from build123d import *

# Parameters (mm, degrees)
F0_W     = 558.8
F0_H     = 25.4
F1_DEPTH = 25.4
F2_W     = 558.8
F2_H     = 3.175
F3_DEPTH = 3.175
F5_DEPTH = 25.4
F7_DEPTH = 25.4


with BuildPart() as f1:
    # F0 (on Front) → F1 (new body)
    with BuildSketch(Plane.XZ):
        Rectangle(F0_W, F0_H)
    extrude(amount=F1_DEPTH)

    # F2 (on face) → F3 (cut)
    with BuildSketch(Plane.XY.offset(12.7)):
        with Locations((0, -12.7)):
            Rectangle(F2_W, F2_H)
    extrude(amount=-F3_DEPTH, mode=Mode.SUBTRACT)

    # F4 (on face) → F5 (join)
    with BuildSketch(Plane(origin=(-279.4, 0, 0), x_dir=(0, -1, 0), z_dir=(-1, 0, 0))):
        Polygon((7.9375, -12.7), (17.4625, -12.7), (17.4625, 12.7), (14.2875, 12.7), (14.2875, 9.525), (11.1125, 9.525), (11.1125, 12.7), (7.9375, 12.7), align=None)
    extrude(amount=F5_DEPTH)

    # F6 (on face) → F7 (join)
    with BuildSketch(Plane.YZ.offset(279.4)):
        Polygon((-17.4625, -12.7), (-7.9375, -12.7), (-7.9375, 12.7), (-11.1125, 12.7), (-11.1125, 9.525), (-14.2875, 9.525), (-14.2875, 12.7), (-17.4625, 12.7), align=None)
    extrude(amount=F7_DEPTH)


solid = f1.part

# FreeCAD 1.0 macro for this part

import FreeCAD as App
import Part
import Sketcher
Q = App.Units.Quantity

doc = App.newDocument("Part")
body = doc.addObject("PartDesign::Body", "Body")

sketch1 = doc.addObject("Sketcher::SketchObject", "Sketch")
body.addObject(sketch1)
sketch1.AttachmentSupport = (doc.XZ_Plane, [""])
sketch1.MapMode = "FlatFace"
sketch1.addGeometry([
    Part.LineSegment(App.Vector(-279.4, 12.7, 0), App.Vector(-279.4, -12.7, 0)),
    Part.LineSegment(App.Vector(-279.4, -12.7, 0), App.Vector(279.4, -12.7, 0)),
    Part.LineSegment(App.Vector(279.4, -12.7, 0), App.Vector(279.4, 12.7, 0)),
    Part.LineSegment(App.Vector(279.4, 12.7, 0), App.Vector(-279.4, 12.7, 0)),
], False)
sketch1.addConstraint([
    Sketcher.Constraint("Coincident", 0, 2, 1, 1),
    Sketcher.Constraint("Coincident", 1, 2, 2, 1),
    Sketcher.Constraint("Coincident", 2, 2, 3, 1),
    Sketcher.Constraint("Coincident", 3, 2, 0, 1),
    Sketcher.Constraint("Vertical", 0),
    Sketcher.Constraint("Horizontal", 1),
    Sketcher.Constraint("Vertical", 2),
    Sketcher.Constraint("Horizontal", 3),
    Sketcher.Constraint("Symmetric", 0, 2, 2, 2, -1, 1),
    Sketcher.Constraint("DistanceX", 1, 1, 1, 2, Q("22 in")),
    Sketcher.Constraint("DistanceY", 0, 2, 0, 1, Q("1 in")),
])
pad1 = doc.addObject("PartDesign::Pad", "Pad")
body.addObject(pad1)
pad1.Profile = sketch1
pad1.Length = Q("1 in")

sketch2 = doc.addObject("Sketcher::SketchObject", "Sketch001")
body.addObject(sketch2)
sketch2.AttachmentSupport = (doc.XY_Plane, [""])
sketch2.MapMode = "FlatFace"
sketch2.AttachmentOffset = App.Placement(App.Vector(0, 0, 0.5 * 25.4), App.Rotation())
sketch2.addGeometry([
    Part.LineSegment(App.Vector(-279.4, -11.1125, 0), App.Vector(-279.4, -14.2875, 0)),
    Part.LineSegment(App.Vector(-279.4, -14.2875, 0), App.Vector(279.4, -14.2875, 0)),
    Part.LineSegment(App.Vector(279.4, -14.2875, 0), App.Vector(279.4, -11.1125, 0)),
    Part.LineSegment(App.Vector(279.4, -11.1125, 0), App.Vector(-279.4, -11.1125, 0)),
], False)
sketch2.addConstraint([
    Sketcher.Constraint("Coincident", 0, 2, 1, 1),
    Sketcher.Constraint("Coincident", 1, 2, 2, 1),
    Sketcher.Constraint("Coincident", 2, 2, 3, 1),
    Sketcher.Constraint("Coincident", 3, 2, 0, 1),
    Sketcher.Constraint("Vertical", 0),
    Sketcher.Constraint("Horizontal", 1),
    Sketcher.Constraint("Vertical", 2),
    Sketcher.Constraint("Horizontal", 3),
    Sketcher.Constraint("DistanceX", 1, 1, 1, 2, Q("22 in")),
    Sketcher.Constraint("DistanceX", 0, 2, -1, 1, Q("11 in")),
    Sketcher.Constraint("DistanceY", 0, 2, 0, 1, Q("0.125 in")),
    Sketcher.Constraint("DistanceY", 0, 2, -1, 1, Q("0.5625 in")),
])
pocket1 = doc.addObject("PartDesign::Pocket", "Pocket")
body.addObject(pocket1)
pocket1.Profile = sketch2
pocket1.Length = Q("0.125 in")

sketch3 = doc.addObject("Sketcher::SketchObject", "Sketch002")
body.addObject(sketch3)
sketch3.AttachmentSupport = (doc.YZ_Plane, [""])
sketch3.MapMode = "FlatFace"
sketch3.AttachmentOffset = App.Placement(App.Vector(0, 0, -11 * 25.4), App.Rotation())
sketch3.addGeometry([
    Part.LineSegment(App.Vector(-7.9375, -12.7, 0), App.Vector(-17.4625, -12.7, 0)),
    Part.LineSegment(App.Vector(-17.4625, -12.7, 0), App.Vector(-17.4625, 12.7, 0)),
    Part.LineSegment(App.Vector(-17.4625, 12.7, 0), App.Vector(-14.2875, 12.7, 0)),
    Part.LineSegment(App.Vector(-14.2875, 12.7, 0), App.Vector(-14.2875, 9.525, 0)),
    Part.LineSegment(App.Vector(-14.2875, 9.525, 0), App.Vector(-11.1125, 9.525, 0)),
    Part.LineSegment(App.Vector(-11.1125, 9.525, 0), App.Vector(-11.1125, 12.7, 0)),
    Part.LineSegment(App.Vector(-11.1125, 12.7, 0), App.Vector(-7.9375, 12.7, 0)),
    Part.LineSegment(App.Vector(-7.9375, 12.7, 0), App.Vector(-7.9375, -12.7, 0)),
], False)
sketch3.addConstraint([
    Sketcher.Constraint("Coincident", 0, 2, 1, 1),
    Sketcher.Constraint("Coincident", 1, 2, 2, 1),
    Sketcher.Constraint("Coincident", 2, 2, 3, 1),
    Sketcher.Constraint("Coincident", 3, 2, 4, 1),
    Sketcher.Constraint("Coincident", 4, 2, 5, 1),
    Sketcher.Constraint("Coincident", 5, 2, 6, 1),
    Sketcher.Constraint("Coincident", 6, 2, 7, 1),
    Sketcher.Constraint("Coincident", 7, 2, 0, 1),
    Sketcher.Constraint("Horizontal", 0),
    Sketcher.Constraint("Vertical", 1),
    Sketcher.Constraint("Horizontal", 2),
    Sketcher.Constraint("Vertical", 3),
    Sketcher.Constraint("Horizontal", 4),
    Sketcher.Constraint("Vertical", 5),
    Sketcher.Constraint("Horizontal", 6),
    Sketcher.Constraint("Vertical", 7),
    Sketcher.Constraint("Horizontal", 2, 2, 5, 2),
    Sketcher.Constraint("Equal", 2, 4),
    Sketcher.Constraint("Equal", 4, 6),
    Sketcher.Constraint("Equal", 6, 3),
    Sketcher.Constraint("DistanceY", 1, 1, 1, 2, Q("1 in")),
    Sketcher.Constraint("DistanceY", 0, 2, -1, 1, Q("0.5 in")),
    Sketcher.Constraint("DistanceX", 0, 2, 0, 1, Q("0.375 in")),
    Sketcher.Constraint("DistanceX", 0, 2, -1, 1, Q("0.6875 in")),
])
pad2 = doc.addObject("PartDesign::Pad", "Pad001")
body.addObject(pad2)
pad2.Profile = sketch3
pad2.Length = Q("1 in")
pad2.Reversed = True

sketch4 = doc.addObject("Sketcher::SketchObject", "Sketch003")
body.addObject(sketch4)
sketch4.AttachmentSupport = (doc.YZ_Plane, [""])
sketch4.MapMode = "FlatFace"
sketch4.AttachmentOffset = App.Placement(App.Vector(0, 0, 11 * 25.4), App.Rotation())
sketch4.addGeometry([
    Part.LineSegment(App.Vector(-17.4625, -12.7, 0), App.Vector(-7.9375, -12.7, 0)),
    Part.LineSegment(App.Vector(-7.9375, -12.7, 0), App.Vector(-7.9375, 12.7, 0)),
    Part.LineSegment(App.Vector(-7.9375, 12.7, 0), App.Vector(-11.1125, 12.7, 0)),
    Part.LineSegment(App.Vector(-11.1125, 12.7, 0), App.Vector(-11.1125, 9.525, 0)),
    Part.LineSegment(App.Vector(-11.1125, 9.525, 0), App.Vector(-14.2875, 9.525, 0)),
    Part.LineSegment(App.Vector(-14.2875, 9.525, 0), App.Vector(-14.2875, 12.7, 0)),
    Part.LineSegment(App.Vector(-14.2875, 12.7, 0), App.Vector(-17.4625, 12.7, 0)),
    Part.LineSegment(App.Vector(-17.4625, 12.7, 0), App.Vector(-17.4625, -12.7, 0)),
], False)
sketch4.addConstraint([
    Sketcher.Constraint("Coincident", 0, 2, 1, 1),
    Sketcher.Constraint("Coincident", 1, 2, 2, 1),
    Sketcher.Constraint("Coincident", 2, 2, 3, 1),
    Sketcher.Constraint("Coincident", 3, 2, 4, 1),
    Sketcher.Constraint("Coincident", 4, 2, 5, 1),
    Sketcher.Constraint("Coincident", 5, 2, 6, 1),
    Sketcher.Constraint("Coincident", 6, 2, 7, 1),
    Sketcher.Constraint("Coincident", 7, 2, 0, 1),
    Sketcher.Constraint("Horizontal", 0),
    Sketcher.Constraint("Vertical", 1),
    Sketcher.Constraint("Horizontal", 2),
    Sketcher.Constraint("Vertical", 3),
    Sketcher.Constraint("Horizontal", 4),
    Sketcher.Constraint("Vertical", 5),
    Sketcher.Constraint("Horizontal", 6),
    Sketcher.Constraint("Vertical", 7),
    Sketcher.Constraint("Horizontal", 2, 2, 5, 2),
    Sketcher.Constraint("Equal", 2, 4),
    Sketcher.Constraint("Equal", 4, 6),
    Sketcher.Constraint("Equal", 6, 3),
    Sketcher.Constraint("DistanceY", 1, 1, 1, 2, Q("1 in")),
    Sketcher.Constraint("DistanceY", 0, 2, -1, 1, Q("0.5 in")),
    Sketcher.Constraint("DistanceX", 0, 1, 0, 2, Q("0.375 in")),
    Sketcher.Constraint("DistanceX", 0, 2, -1, 1, Q("0.3125 in")),
])
pad3 = doc.addObject("PartDesign::Pad", "Pad002")
body.addObject(pad3)
pad3.Profile = sketch4
pad3.Length = Q("1 in")

doc.recompute()
